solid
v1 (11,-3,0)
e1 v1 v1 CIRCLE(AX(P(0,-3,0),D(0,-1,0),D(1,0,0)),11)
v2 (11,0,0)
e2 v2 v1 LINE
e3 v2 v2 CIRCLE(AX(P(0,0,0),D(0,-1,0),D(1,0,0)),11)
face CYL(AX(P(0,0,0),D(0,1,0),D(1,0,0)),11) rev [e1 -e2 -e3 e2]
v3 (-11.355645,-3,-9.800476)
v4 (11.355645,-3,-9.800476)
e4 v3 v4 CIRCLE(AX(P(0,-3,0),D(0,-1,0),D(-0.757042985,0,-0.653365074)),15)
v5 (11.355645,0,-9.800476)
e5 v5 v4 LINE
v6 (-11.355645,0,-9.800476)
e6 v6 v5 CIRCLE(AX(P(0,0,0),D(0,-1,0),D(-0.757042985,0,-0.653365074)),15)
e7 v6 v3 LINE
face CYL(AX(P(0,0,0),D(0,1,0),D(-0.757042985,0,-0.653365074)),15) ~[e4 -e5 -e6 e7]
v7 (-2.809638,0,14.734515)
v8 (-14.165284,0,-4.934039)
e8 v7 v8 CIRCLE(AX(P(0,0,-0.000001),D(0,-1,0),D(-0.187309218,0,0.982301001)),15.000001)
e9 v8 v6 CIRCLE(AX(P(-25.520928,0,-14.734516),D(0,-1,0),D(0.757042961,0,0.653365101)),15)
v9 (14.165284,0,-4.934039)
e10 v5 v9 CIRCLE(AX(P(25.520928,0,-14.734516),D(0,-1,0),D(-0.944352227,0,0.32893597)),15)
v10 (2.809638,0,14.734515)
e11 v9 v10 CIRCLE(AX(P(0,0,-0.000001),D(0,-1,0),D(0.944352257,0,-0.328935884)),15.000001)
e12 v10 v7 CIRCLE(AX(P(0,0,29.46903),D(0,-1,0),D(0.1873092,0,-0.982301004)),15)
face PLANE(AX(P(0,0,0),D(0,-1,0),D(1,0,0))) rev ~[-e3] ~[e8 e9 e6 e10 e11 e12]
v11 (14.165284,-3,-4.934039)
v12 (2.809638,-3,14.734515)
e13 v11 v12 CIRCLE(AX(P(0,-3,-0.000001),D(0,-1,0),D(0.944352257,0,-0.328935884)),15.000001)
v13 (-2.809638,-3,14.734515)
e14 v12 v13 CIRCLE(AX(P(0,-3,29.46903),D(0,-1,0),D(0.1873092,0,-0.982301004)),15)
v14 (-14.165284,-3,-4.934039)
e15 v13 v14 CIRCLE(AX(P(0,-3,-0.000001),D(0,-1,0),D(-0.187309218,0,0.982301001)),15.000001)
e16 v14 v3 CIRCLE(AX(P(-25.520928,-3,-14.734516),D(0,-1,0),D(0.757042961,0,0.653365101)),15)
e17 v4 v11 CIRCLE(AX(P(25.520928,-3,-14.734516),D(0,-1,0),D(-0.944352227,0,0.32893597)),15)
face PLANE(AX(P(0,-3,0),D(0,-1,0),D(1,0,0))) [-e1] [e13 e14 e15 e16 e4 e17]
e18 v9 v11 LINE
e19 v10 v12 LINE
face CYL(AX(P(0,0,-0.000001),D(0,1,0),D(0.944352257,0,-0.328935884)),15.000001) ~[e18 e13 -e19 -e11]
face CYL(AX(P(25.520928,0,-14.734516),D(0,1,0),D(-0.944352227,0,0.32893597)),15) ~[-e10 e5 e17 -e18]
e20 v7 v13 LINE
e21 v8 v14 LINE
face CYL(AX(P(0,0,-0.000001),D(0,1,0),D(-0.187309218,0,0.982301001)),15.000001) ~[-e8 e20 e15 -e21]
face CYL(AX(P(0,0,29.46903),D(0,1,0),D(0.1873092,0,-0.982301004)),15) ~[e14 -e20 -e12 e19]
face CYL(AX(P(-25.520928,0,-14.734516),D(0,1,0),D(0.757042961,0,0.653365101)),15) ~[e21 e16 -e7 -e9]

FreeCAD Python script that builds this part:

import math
import FreeCAD as App
import Part
import Sketcher

doc = App.newDocument("Part")
params = doc.addObject("Spreadsheet::Sheet", "Params")
for row, (alias, value) in enumerate([
    ("sketch1_diameter", "22 mm"),
    ("sketch1_radius", "15 mm"),
    ("pad1_length", "3 mm"),
], start=1):
    params.set(f"A{row}", alias)
    params.set(f"B{row}", "=" + value)
    params.setAlias(f"B{row}", alias)

body = doc.addObject("PartDesign::Body", "Body")

# Sketch on XZ plane
sketch1 = body.newObject("Sketcher::SketchObject", "Sketch")
sketch1.AttachmentSupport = (doc.getObject("XZ_Plane"), [""])
sketch1.MapMode = "FlatFace"
sketch1.addGeometry(Part.ArcOfCircle(Part.Circle(App.Vector(0, 29, 0), App.Vector(0, 0, 1), 15), math.radians(-79), math.radians(259)), False)
sketch1.addGeometry(Part.ArcOfCircle(Part.Circle(App.Vector(0, 0, 0), App.Vector(0, 0, 1), 15), math.radians(101), math.radians(199)), False)
sketch1.addGeometry(Part.ArcOfCircle(Part.Circle(App.Vector(-26, -15, 0), App.Vector(0, 0, 1), 15), math.radians(41), math.radians(379)), False)
sketch1.addGeometry(Part.ArcOfCircle(Part.Circle(App.Vector(0, 0, 0), App.Vector(0, 0, 1), 15), math.radians(-139), math.radians(-41)), False)
sketch1.addGeometry(Part.ArcOfCircle(Part.Circle(App.Vector(26, -15, 0), App.Vector(0, 0, 1), 15), math.radians(161), math.radians(499)), False)
sketch1.addGeometry(Part.ArcOfCircle(Part.Circle(App.Vector(0, 0, 0), App.Vector(0, 0, 1), 15), math.radians(-19), math.radians(79)), False)
sketch1.addGeometry(Part.Circle(App.Vector(0, 0, 0), App.Vector(0, 0, 1), 11), False)
sketch1.addConstraint(Sketcher.Constraint("Coincident", 0, 2, 1, 1))
sketch1.addConstraint(Sketcher.Constraint("Coincident", 1, 2, 2, 1))
sketch1.addConstraint(Sketcher.Constraint("Coincident", 2, 2, 3, 1))
sketch1.addConstraint(Sketcher.Constraint("Coincident", 3, 2, 4, 1))
sketch1.addConstraint(Sketcher.Constraint("Coincident", 4, 2, 5, 1))
sketch1.addConstraint(Sketcher.Constraint("Coincident", 5, 2, 0, 1))
sketch1.addConstraint(Sketcher.Constraint("Coincident", 1, 3, -1, 1))
sketch1.addConstraint(Sketcher.Constraint("Coincident", 3, 3, -1, 1))
sketch1.addConstraint(Sketcher.Constraint("Coincident", 5, 3, -1, 1))
sketch1.addConstraint(Sketcher.Constraint("Coincident", 6, 3, -1, 1))
sketch1.addConstraint(Sketcher.Constraint("Equal", 0, 1))
sketch1.addConstraint(Sketcher.Constraint("Equal", 1, 2))
sketch1.addConstraint(Sketcher.Constraint("Equal", 2, 3))
sketch1.addConstraint(Sketcher.Constraint("Equal", 3, 4))
sketch1.addConstraint(Sketcher.Constraint("Equal", 4, 5))
sketch1.addConstraint(Sketcher.Constraint("Symmetric", 2, 3, 4, 3, -2))
sketch1.addConstraint(Sketcher.Constraint("PointOnObject", 0, 3, -2))
sketch1.addConstraint(Sketcher.Constraint("Diameter", 6, 22.0))
sketch1.addConstraint(Sketcher.Constraint("Radius", 0, 15.0))
sketch1.addConstraint(Sketcher.Constraint("DistanceY", -1, 1, 0, 3, 29.46903))
sketch1.addConstraint(Sketcher.Constraint("DistanceX", 2, 3, -1, 1, 25.520928))
sketch1.addConstraint(Sketcher.Constraint("DistanceY", 1, 2, -1, 1, 4.934039))
sketch1.setExpression("Constraints[17]", "Params.sketch1_diameter")
sketch1.setExpression("Constraints[18]", "Params.sketch1_radius")
pad1 = body.newObject("PartDesign::Pad", "Pad")
pad1.Profile = sketch1
pad1.setExpression("Length", "Params.pad1_length")

doc.recompute()
